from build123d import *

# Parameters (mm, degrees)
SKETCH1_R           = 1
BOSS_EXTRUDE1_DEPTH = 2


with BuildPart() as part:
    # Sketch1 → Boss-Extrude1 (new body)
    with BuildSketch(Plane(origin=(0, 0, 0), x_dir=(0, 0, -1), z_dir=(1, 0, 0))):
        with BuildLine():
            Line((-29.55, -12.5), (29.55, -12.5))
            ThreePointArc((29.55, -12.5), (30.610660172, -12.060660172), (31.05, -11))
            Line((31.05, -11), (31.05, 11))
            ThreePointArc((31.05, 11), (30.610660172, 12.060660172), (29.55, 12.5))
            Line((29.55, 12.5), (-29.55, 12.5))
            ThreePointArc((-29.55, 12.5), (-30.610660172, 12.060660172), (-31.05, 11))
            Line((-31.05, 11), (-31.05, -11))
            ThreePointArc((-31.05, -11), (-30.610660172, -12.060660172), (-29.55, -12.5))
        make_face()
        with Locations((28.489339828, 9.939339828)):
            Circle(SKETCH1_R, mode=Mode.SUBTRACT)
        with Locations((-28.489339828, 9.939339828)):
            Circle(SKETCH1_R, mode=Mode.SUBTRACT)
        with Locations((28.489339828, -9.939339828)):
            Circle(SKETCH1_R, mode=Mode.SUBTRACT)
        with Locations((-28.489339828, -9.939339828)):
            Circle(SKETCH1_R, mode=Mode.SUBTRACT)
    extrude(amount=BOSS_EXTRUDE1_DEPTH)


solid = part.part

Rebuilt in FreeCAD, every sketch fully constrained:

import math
import FreeCAD as App
import Part
import Sketcher

V = App.Vector

doc = App.newDocument("Part")
body = doc.addObject("PartDesign::Body", "Body")

# Sketch on YZ plane
sketch1 = body.newObject("Sketcher::SketchObject", "Sketch")
sketch1.AttachmentSupport = (doc.getObject("YZ_Plane"), [""])
sketch1.MapMode = "FlatFace"
sketch1.addGeometry(Part.LineSegment(V(-12.5, 29.6, 0), V(-12.5, -29.6, 0)), False)
sketch1.addGeometry(Part.ArcOfCircle(Part.Circle(V(-11, -29.6, 0), V(0, 0, 1), 1.5), math.radians(180), math.radians(270)), False)
sketch1.addGeometry(Part.LineSegment(V(-11, -31.1, 0), V(11, -31.1, 0)), False)
sketch1.addGeometry(Part.ArcOfCircle(Part.Circle(V(11, -29.6, 0), V(0, 0, 1), 1.5), math.radians(-90), math.radians(0)), False)
sketch1.addGeometry(Part.LineSegment(V(12.5, -29.6, 0), V(12.5, 29.6, 0)), False)
sketch1.addGeometry(Part.ArcOfCircle(Part.Circle(V(11, 29.6, 0), V(0, 0, 1), 1.5), math.radians(0), math.radians(90)), False)
sketch1.addGeometry(Part.LineSegment(V(11, 31.1, 0), V(-11, 31.1, 0)), False)
sketch1.addGeometry(Part.ArcOfCircle(Part.Circle(V(-11, 29.6, 0), V(0, 0, 1), 1.5), math.radians(90), math.radians(180)), False)
sketch1.addGeometry(Part.Circle(V(-9.9, 28.5, 0), V(0, 0, 1), 1), False)
sketch1.addGeometry(Part.Circle(V(-9.9, -28.5, 0), V(0, 0, 1), 1), False)
sketch1.addGeometry(Part.Circle(V(9.9, 28.5, 0), V(0, 0, 1), 1), False)
sketch1.addGeometry(Part.Circle(V(9.9, -28.5, 0), V(0, 0, 1), 1), False)
sketch1.addConstraint(Sketcher.Constraint("Tangent", 0, 2, 1, 1))
sketch1.addConstraint(Sketcher.Constraint("Tangent", 1, 2, 2, 1))
sketch1.addConstraint(Sketcher.Constraint("Tangent", 2, 2, 3, 1))
sketch1.addConstraint(Sketcher.Constraint("Tangent", 3, 2, 4, 1))
sketch1.addConstraint(Sketcher.Constraint("Tangent", 4, 2, 5, 1))
sketch1.addConstraint(Sketcher.Constraint("Tangent", 5, 2, 6, 1))
sketch1.addConstraint(Sketcher.Constraint("Tangent", 6, 2, 7, 1))
sketch1.addConstraint(Sketcher.Constraint("Tangent", 7, 2, 0, 1))
sketch1.addConstraint(Sketcher.Constraint("Vertical", 0))
sketch1.addConstraint(Sketcher.Constraint("Horizontal", 2))
sketch1.addConstraint(Sketcher.Constraint("Vertical", 4))
sketch1.addConstraint(Sketcher.Constraint("Horizontal", 6))
sketch1.addConstraint(Sketcher.Constraint("Equal", 1, 3))
sketch1.addConstraint(Sketcher.Constraint("Equal", 3, 5))
sketch1.addConstraint(Sketcher.Constraint("Equal", 5, 7))
sketch1.addConstraint(Sketcher.Constraint("Equal", 8, 9))
sketch1.addConstraint(Sketcher.Constraint("Equal", 9, 10))
sketch1.addConstraint(Sketcher.Constraint("Equal", 10, 11))
sketch1.addConstraint(Sketcher.Constraint("Symmetric", 1, 3, 5, 3, -1, 1))
sketch1.addConstraint(Sketcher.Constraint("Symmetric", 9, 3, 10, 3, -1, 1))
sketch1.addConstraint(Sketcher.Constraint("Symmetric", 8, 3, 11, 3, -1, 1))
sketch1.addConstraint(Sketcher.Constraint("Symmetric", 8, 3, 10, 3, -2))
sketch1.addConstraint(Sketcher.Constraint("Diameter", 8, 2.0))
sketch1.addConstraint(Sketcher.Constraint("Radius", 1, 1.5))
sketch1.addConstraint(Sketcher.Constraint("DistanceX", 2, 1, 2, 2, 22.0))
sketch1.addConstraint(Sketcher.Constraint("DistanceY", 0, 2, 0, 1, 59.1))
sketch1.addConstraint(Sketcher.Constraint("DistanceX", 8, 3, -1, 1, 9.93934))
sketch1.addConstraint(Sketcher.Constraint("DistanceY", -1, 1, 8, 3, 28.48934))
pad1 = body.newObject("PartDesign::Pad", "Pad")
pad1.Profile = sketch1
pad1.Length = 2

doc.recompute()
